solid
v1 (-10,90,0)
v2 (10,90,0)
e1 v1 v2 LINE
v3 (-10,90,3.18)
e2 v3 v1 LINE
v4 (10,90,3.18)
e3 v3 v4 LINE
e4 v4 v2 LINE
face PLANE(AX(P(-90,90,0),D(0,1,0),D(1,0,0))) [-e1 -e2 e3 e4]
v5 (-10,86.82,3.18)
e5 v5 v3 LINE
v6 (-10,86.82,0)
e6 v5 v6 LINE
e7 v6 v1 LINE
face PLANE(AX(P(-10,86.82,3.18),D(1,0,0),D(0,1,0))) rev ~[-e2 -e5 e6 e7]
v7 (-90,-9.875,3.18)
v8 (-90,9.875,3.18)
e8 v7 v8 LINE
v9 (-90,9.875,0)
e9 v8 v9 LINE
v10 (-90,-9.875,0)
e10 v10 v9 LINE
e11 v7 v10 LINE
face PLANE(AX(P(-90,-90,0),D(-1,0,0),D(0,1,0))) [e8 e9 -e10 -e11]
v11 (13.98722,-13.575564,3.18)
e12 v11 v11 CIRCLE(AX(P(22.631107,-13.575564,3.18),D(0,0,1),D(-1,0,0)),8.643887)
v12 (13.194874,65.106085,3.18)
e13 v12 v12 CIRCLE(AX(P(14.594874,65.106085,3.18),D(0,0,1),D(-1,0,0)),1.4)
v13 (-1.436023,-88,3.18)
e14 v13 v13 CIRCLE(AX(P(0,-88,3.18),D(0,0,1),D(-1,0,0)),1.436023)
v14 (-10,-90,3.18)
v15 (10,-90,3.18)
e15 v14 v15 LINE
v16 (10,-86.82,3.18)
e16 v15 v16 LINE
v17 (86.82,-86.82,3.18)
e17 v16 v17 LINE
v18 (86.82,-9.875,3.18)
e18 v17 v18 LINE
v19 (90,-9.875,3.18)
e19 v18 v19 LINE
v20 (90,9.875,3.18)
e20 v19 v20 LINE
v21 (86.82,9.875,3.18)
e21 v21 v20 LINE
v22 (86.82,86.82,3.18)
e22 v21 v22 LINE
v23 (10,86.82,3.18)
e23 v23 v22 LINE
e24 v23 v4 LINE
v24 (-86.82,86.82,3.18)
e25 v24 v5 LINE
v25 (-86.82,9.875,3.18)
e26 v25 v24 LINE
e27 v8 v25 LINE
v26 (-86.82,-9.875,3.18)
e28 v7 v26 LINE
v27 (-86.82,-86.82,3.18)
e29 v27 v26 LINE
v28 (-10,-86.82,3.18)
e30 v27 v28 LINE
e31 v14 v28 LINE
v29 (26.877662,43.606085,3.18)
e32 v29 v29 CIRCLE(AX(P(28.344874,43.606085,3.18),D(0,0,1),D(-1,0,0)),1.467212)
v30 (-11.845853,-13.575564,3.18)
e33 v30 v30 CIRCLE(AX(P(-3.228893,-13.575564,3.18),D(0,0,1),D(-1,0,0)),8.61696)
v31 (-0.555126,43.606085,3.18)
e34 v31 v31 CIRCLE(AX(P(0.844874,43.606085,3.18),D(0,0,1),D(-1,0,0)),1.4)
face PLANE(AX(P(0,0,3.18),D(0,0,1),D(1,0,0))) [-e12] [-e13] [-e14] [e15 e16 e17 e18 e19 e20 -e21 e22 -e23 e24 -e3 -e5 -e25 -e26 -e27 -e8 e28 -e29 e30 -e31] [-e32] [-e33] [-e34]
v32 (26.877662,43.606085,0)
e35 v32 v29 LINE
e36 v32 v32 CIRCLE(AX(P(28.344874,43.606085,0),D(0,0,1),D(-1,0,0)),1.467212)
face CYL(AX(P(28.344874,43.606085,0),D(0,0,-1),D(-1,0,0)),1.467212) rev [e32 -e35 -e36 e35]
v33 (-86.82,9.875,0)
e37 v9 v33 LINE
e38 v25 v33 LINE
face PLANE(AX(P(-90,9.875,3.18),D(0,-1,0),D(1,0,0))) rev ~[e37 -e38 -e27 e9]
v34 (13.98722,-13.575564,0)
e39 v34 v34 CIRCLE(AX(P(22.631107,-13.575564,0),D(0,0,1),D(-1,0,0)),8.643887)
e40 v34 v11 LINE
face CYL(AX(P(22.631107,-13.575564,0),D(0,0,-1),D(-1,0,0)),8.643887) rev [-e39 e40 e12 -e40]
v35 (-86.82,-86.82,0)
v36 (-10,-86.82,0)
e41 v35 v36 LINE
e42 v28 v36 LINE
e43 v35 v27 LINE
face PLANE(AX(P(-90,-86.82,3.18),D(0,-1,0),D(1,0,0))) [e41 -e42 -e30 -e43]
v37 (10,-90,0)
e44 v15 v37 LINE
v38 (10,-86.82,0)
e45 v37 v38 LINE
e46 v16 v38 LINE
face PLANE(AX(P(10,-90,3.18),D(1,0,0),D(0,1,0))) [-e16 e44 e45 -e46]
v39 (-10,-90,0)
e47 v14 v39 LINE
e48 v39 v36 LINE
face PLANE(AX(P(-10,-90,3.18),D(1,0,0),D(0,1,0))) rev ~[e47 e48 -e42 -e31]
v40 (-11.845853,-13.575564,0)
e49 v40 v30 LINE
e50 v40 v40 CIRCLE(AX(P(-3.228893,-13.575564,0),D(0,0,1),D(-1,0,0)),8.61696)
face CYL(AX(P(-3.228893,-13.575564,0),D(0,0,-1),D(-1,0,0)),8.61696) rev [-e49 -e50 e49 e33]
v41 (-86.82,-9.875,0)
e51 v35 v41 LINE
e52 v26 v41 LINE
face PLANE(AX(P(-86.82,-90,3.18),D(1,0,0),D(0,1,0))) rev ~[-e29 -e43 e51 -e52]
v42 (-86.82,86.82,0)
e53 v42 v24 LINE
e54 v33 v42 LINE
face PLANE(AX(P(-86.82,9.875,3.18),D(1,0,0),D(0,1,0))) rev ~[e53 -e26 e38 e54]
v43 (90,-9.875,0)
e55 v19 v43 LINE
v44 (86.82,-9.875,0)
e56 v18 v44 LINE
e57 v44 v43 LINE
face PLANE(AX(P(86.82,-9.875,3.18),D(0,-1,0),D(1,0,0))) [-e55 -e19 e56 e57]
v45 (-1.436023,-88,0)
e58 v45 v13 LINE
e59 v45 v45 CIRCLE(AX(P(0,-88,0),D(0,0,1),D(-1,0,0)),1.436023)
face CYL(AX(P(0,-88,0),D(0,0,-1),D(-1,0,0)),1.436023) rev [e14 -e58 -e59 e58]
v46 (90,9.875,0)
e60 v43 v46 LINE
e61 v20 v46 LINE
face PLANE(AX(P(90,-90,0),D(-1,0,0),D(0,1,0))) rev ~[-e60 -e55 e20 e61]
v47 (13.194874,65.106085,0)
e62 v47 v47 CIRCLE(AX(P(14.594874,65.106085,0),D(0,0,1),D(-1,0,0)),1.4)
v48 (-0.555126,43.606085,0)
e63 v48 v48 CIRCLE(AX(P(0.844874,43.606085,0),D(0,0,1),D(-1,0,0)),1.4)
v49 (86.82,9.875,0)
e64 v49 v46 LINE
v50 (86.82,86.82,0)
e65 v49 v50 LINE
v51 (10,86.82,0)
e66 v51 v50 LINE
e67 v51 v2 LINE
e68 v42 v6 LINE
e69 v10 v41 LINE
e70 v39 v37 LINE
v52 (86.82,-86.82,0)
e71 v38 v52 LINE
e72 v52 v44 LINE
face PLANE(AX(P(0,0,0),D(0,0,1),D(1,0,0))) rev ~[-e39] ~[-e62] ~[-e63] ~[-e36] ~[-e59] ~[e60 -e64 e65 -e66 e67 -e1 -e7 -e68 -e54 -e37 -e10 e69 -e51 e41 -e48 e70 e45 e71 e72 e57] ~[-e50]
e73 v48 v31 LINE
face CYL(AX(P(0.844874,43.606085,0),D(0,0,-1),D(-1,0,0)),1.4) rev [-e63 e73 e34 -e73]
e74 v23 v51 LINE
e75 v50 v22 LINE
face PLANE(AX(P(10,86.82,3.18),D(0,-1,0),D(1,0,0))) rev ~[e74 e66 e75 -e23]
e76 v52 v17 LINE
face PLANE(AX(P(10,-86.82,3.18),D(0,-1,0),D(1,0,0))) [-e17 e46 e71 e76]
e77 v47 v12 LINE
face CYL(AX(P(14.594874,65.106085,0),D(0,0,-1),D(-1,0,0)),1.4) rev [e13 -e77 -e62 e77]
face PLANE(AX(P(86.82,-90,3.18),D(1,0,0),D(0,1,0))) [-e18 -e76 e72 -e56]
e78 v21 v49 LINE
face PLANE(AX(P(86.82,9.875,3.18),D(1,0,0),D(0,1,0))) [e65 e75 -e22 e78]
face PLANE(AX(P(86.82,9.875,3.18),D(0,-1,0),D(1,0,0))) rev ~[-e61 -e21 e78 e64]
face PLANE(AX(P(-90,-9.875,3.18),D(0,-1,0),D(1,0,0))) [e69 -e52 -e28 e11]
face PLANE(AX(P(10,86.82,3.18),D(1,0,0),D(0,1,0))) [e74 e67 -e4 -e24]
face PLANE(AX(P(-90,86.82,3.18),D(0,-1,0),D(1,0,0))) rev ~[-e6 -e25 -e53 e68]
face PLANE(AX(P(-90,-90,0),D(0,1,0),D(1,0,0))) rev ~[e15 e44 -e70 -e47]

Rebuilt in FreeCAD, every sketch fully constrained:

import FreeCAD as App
import Part
import Sketcher

V = App.Vector
Q = App.Units.Quantity


def add_polygon(sketch, points):
    """Adds a closed chain of lines whose ends are joined by coincident constraints."""
    first, n = sketch.GeometryCount, len(points)
    for a, b in zip(points, points[1:] + points[:1]):
        sketch.addGeometry(Part.LineSegment(App.Vector(*a, 0), App.Vector(*b, 0)), False)
    for i in range(n):
        sketch.addConstraint(Sketcher.Constraint("Coincident", first + i, 2, first + (i + 1) % n, 1))

doc = App.newDocument("Part")
params = doc.addObject("Spreadsheet::Sheet", "Params")
for row, (alias, value) in enumerate([
    ("sketch1_diameter", "2.8 mm"),
    ("sketch1_width", "180 mm"),
    ("pad1_length", "3.18 mm"),
    ("sketch2_width", "80 mm"),
    ("sketch2_height", "3.18 mm"),
    ("sketch3_width", "3.18 mm"),
], start=1):
    params.set(f"A{row}", alias)
    params.set(f"B{row}", "=" + value)
    params.setAlias(f"B{row}", alias)

body = doc.addObject("PartDesign::Body", "Body")

sketch1 = body.newObject("Sketcher::SketchObject", "Sketch")
sketch1.AttachmentSupport = (doc.getObject("XY_Plane"), [""])
sketch1.MapMode = "FlatFace"
add_polygon(sketch1, [(-90, 90), (-90, -90), (90, -90), (90, 90)])
sketch1.addGeometry(Part.Circle(V(0, -88, 0), V(0, 0, 1), 1.4), False)
sketch1.addGeometry(Part.Circle(V(-3.2, -13.6, 0), V(0, 0, 1), 8.6), False)
sketch1.addGeometry(Part.Circle(V(22.6, -13.6, 0), V(0, 0, 1), 8.6), False)
sketch1.addGeometry(Part.Circle(V(0.8, 43.6, 0), V(0, 0, 1), 1.4), False)
sketch1.addGeometry(Part.Circle(V(14.6, 65.1, 0), V(0, 0, 1), 1.4), False)
sketch1.addGeometry(Part.Circle(V(28.3, 43.6, 0), V(0, 0, 1), 1.5), False)
sketch1.addConstraint([
    Sketcher.Constraint("Vertical", 0),
    Sketcher.Constraint("Horizontal", 1),
    Sketcher.Constraint("Vertical", 2),
    Sketcher.Constraint("Horizontal", 3),
    Sketcher.Constraint("Equal", 7, 8),
    Sketcher.Constraint("Symmetric", 0, 2, 2, 2, -1, 1),
    Sketcher.Constraint("PointOnObject", 4, 3, -2),
    Sketcher.Constraint("Horizontal", 5, 3, 6, 3),
    Sketcher.Constraint("Horizontal", 7, 3, 9, 3),
    Sketcher.Constraint("Equal", 3, 0),
    Sketcher.Constraint("Diameter", 7, Q("2.8 mm")),
    Sketcher.Constraint("DistanceX", 1, 1, 1, 2, Q("180 mm")),
    Sketcher.Constraint("DistanceY", 4, 3, -1, 1, Q("88 mm")),
    Sketcher.Constraint("DistanceY", 7, 3, 8, 3, Q("21.5 mm")),
    Sketcher.Constraint("DistanceX", 7, 3, 9, 3, Q("27.5 mm")),
    Sketcher.Constraint("Diameter", 5, Q("17.23392 mm")),
    Sketcher.Constraint("DistanceX", 5, 3, 6, 3, Q("25.86 mm")),
    Sketcher.Constraint("DistanceX", 7, 3, 8, 3, Q("13.75 mm")),
    Sketcher.Constraint("Diameter", 4, Q("2.872046 mm")),
    Sketcher.Constraint("Diameter", 6, Q("17.287774 mm")),
    Sketcher.Constraint("Diameter", 9, Q("2.934425 mm")),
    Sketcher.Constraint("DistanceY", 5, 3, 7, 3, Q("57.181649 mm")),
    Sketcher.Constraint("DistanceX", 5, 3, -1, 1, Q("3.228893 mm")),
    Sketcher.Constraint("DistanceY", 5, 3, -1, 1, Q("13.575564 mm")),
    Sketcher.Constraint("DistanceX", -1, 1, 7, 3, Q("0.844874 mm")),
])
sketch1.setExpression("Constraints[14]", "Params.sketch1_diameter")
sketch1.setExpression("Constraints[15]", "Params.sketch1_width")
pad1 = body.newObject("PartDesign::Pad", "Pad")
pad1.Profile = sketch1
pad1.setExpression("Length", "Params.pad1_length")

sketch2 = body.newObject("Sketcher::SketchObject", "Sketch001")
sketch2.AttachmentSupport = (doc.getObject("XY_Plane"), [""])
sketch2.MapMode = "FlatFace"
sketch2.AttachmentOffset = App.Placement(V(0, 0, 3.18), App.Rotation())
add_polygon(sketch2, [(10, -86.8), (10, -90), (90, -90), (90, -86.8)])
add_polygon(sketch2, [(-90, 90), (-90, 86.8), (-10, 86.8), (-10, 90)])
add_polygon(sketch2, [(10, 90), (10, 86.8), (90, 86.8), (90, 90)])
add_polygon(sketch2, [(-90, -86.8), (-90, -90), (-10, -90), (-10, -86.8)])
sketch2.addConstraint([
    Sketcher.Constraint("Vertical", 0),
    Sketcher.Constraint("Horizontal", 1),
    Sketcher.Constraint("Vertical", 2),
    Sketcher.Constraint("Horizontal", 3),
    Sketcher.Constraint("Vertical", 4),
    Sketcher.Constraint("Horizontal", 5),
    Sketcher.Constraint("Vertical", 6),
    Sketcher.Constraint("Horizontal", 7),
    Sketcher.Constraint("Vertical", 8),
    Sketcher.Constraint("Horizontal", 9),
    Sketcher.Constraint("Vertical", 10),
    Sketcher.Constraint("Horizontal", 11),
    Sketcher.Constraint("Vertical", 12),
    Sketcher.Constraint("Horizontal", 13),
    Sketcher.Constraint("Vertical", 14),
    Sketcher.Constraint("Horizontal", 15),
    Sketcher.Constraint("Symmetric", 2, 2, 4, 2, -1, 1),
    Sketcher.Constraint("Symmetric", 0, 2, 6, 2, -1, 1),
    Sketcher.Constraint("Symmetric", 10, 2, 12, 2, -1, 1),
    Sketcher.Constraint("Symmetric", 8, 2, 14, 2, -1, 1),
    Sketcher.Constraint("Symmetric", 5, 2, 8, 2, -2),
    Sketcher.Constraint("Symmetric", 7, 2, 10, 2, -2),
    Sketcher.Constraint("DistanceX", 1, 1, 1, 2, Q("80 mm")),
    Sketcher.Constraint("DistanceX", -1, 1, 0, 2, Q("10 mm")),
    Sketcher.Constraint("DistanceY", 0, 2, -1, 1, Q("90 mm")),
    Sketcher.Constraint("DistanceY", 0, 2, 0, 1, Q("3.18 mm")),
])
sketch2.setExpression("Constraints[38]", "Params.sketch2_width")
sketch2.setExpression("Constraints[41]", "Params.sketch2_height")
pocket1 = body.newObject("PartDesign::Pocket", "Pocket")
pocket1.Profile = sketch2
pocket1.Type = "ThroughAll"

sketch3 = body.newObject("Sketcher::SketchObject", "Sketch002")
sketch3.AttachmentSupport = (doc.getObject("XY_Plane"), [""])
sketch3.MapMode = "FlatFace"
sketch3.AttachmentOffset = App.Placement(V(0, 0, 3.18), App.Rotation())
add_polygon(sketch3, [(-90, 90), (-90, 9.9), (-86.8, 9.9), (-86.8, 90)])
add_polygon(sketch3, [(-90, -9.9), (-90, -90), (-86.8, -90), (-86.8, -9.9)])
add_polygon(sketch3, [(86.8, -9.9), (86.8, -90), (90, -90), (90, -9.9)])
add_polygon(sketch3, [(86.8, 90), (86.8, 9.9), (90, 9.9), (90, 90)])
sketch3.addConstraint([
    Sketcher.Constraint("Vertical", 0),
    Sketcher.Constraint("Horizontal", 1),
    Sketcher.Constraint("Vertical", 2),
    Sketcher.Constraint("Horizontal", 3),
    Sketcher.Constraint("Vertical", 4),
    Sketcher.Constraint("Horizontal", 5),
    Sketcher.Constraint("Vertical", 6),
    Sketcher.Constraint("Horizontal", 7),
    Sketcher.Constraint("Vertical", 8),
    Sketcher.Constraint("Horizontal", 9),
    Sketcher.Constraint("Vertical", 10),
    Sketcher.Constraint("Horizontal", 11),
    Sketcher.Constraint("Vertical", 12),
    Sketcher.Constraint("Horizontal", 13),
    Sketcher.Constraint("Vertical", 14),
    Sketcher.Constraint("Horizontal", 15),
    Sketcher.Constraint("Symmetric", 2, 2, 8, 2, -1, 1),
    Sketcher.Constraint("Symmetric", 0, 2, 10, 2, -1, 1),
    Sketcher.Constraint("Symmetric", 6, 2, 12, 2, -1, 1),
    Sketcher.Constraint("Symmetric", 4, 2, 14, 2, -1, 1),
    Sketcher.Constraint("Symmetric", 5, 2, 8, 2, -2),
    Sketcher.Constraint("Symmetric", 7, 2, 10, 2, -2),
    Sketcher.Constraint("DistanceX", 0, 2, -1, 1, Q("90 mm")),
    Sketcher.Constraint("DistanceY", -1, 1, 2, 2, Q("90 mm")),
    Sketcher.Constraint("DistanceX", 1, 1, 1, 2, Q("3.18 mm")),
    Sketcher.Constraint("DistanceY", 0, 2, 0, 1, Q("80.125 mm")),
])
sketch3.setExpression("Constraints[40]", "Params.sketch3_width")
pocket2 = body.newObject("PartDesign::Pocket", "Pocket001")
pocket2.Profile = sketch3
pocket2.Type = "ThroughAll"

doc.recompute()
